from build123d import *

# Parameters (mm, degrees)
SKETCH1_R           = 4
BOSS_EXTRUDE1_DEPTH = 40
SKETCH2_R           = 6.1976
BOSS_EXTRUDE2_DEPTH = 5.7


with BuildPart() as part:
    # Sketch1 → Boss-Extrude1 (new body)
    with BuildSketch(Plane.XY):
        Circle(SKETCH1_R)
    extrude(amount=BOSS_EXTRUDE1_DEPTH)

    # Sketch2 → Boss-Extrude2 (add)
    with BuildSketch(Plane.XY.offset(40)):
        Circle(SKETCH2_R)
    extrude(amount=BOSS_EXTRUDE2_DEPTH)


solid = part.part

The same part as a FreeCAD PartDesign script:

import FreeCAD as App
import Part
import Sketcher
Q = App.Units.Quantity

doc = App.newDocument("Part")
body = doc.addObject("PartDesign::Body", "Body")

sketch1 = body.newObject("Sketcher::SketchObject", "Sketch")
sketch1.AttachmentSupport = (doc.getObject("XY_Plane"), [""])
sketch1.MapMode = "FlatFace"
sketch1.addGeometry(Part.Circle(App.Vector(0, 0, 0), App.Vector(0, 0, 1), 4), False)
sketch1.addConstraint([
    Sketcher.Constraint("Coincident", 0, 3, -1, 1),
    Sketcher.Constraint("Diameter", 0, Q("8 mm")),
])
pad1 = body.newObject("PartDesign::Pad", "Pad")
pad1.Profile = sketch1
pad1.Length = 40

sketch2 = body.newObject("Sketcher::SketchObject", "Sketch001")
sketch2.AttachmentSupport = (doc.getObject("XY_Plane"), [""])
sketch2.MapMode = "FlatFace"
sketch2.AttachmentOffset = App.Placement(App.Vector(0, 0, 40), App.Rotation())
sketch2.addGeometry(Part.Circle(App.Vector(0, 0, 0), App.Vector(0, 0, 1), 6.1976), False)
sketch2.addConstraint([
    Sketcher.Constraint("Coincident", 0, 3, -1, 1),
    Sketcher.Constraint("Diameter", 0, Q("12.3952 mm")),
])
pad2 = body.newObject("PartDesign::Pad", "Pad001")
pad2.Profile = sketch2
pad2.Length = 5.7

doc.recompute()
